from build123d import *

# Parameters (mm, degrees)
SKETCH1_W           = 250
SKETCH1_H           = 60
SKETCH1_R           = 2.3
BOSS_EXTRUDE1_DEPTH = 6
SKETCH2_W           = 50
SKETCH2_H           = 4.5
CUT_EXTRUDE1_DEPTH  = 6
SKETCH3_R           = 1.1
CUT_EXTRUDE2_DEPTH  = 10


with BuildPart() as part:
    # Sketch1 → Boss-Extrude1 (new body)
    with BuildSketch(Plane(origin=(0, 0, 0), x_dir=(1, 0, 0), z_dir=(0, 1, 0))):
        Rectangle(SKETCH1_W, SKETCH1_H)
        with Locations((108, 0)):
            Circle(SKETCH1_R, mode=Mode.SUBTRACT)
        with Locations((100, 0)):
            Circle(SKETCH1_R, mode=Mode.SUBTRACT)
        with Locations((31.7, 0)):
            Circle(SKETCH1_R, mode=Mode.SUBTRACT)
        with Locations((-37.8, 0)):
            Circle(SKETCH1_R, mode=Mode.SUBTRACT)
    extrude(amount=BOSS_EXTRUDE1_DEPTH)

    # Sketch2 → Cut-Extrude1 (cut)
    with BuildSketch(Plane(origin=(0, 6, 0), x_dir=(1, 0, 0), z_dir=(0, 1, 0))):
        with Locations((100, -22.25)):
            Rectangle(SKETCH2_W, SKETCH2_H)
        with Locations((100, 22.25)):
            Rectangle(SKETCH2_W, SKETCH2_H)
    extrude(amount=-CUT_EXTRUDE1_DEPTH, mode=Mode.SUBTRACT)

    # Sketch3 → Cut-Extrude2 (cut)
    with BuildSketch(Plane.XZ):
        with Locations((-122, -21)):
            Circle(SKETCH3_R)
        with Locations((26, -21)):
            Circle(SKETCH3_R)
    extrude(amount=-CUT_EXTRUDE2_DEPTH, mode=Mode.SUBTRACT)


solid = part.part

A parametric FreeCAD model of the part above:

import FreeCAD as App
import Part
import Sketcher

V = App.Vector


def add_polygon(sketch, points):
    """Adds a closed chain of lines whose ends are joined by coincident constraints."""
    first, n = sketch.GeometryCount, len(points)
    for a, b in zip(points, points[1:] + points[:1]):
        sketch.addGeometry(Part.LineSegment(App.Vector(*a, 0), App.Vector(*b, 0)), False)
    for i in range(n):
        sketch.addConstraint(Sketcher.Constraint("Coincident", first + i, 2, first + (i + 1) % n, 1))

doc = App.newDocument("Part")
params = doc.addObject("Spreadsheet::Sheet", "Params")
for row, (alias, value) in enumerate([
    ("sketch1_diameter", "4.6 mm"),
    ("sketch1_width", "250 mm"),
    ("sketch1_height", "60 mm"),
    ("pad1_length", "6 mm"),
    ("sketch2_width", "50 mm"),
    ("sketch2_height", "4.5 mm"),
    ("pocket1_length", "6 mm"),
    ("sketch3_diameter", "2.2 mm"),
    ("pocket2_length", "10 mm"),
], start=1):
    params.set(f"A{row}", alias)
    params.set(f"B{row}", "=" + value)
    params.setAlias(f"B{row}", alias)

body = doc.addObject("PartDesign::Body", "Body")

# Sketch on XZ plane
sketch1 = body.newObject("Sketcher::SketchObject", "Sketch")
sketch1.AttachmentSupport = (doc.getObject("XZ_Plane"), [""])
sketch1.MapMode = "FlatFace"
add_polygon(sketch1, [(-125, -30), (-125, 30), (125, 30), (125, -30)])  # lines 0-3
sketch1.addGeometry(Part.Circle(V(-37.8, 0, 0), V(0, 0, 1), 2.3), False)  # 4
sketch1.addGeometry(Part.Circle(V(31.7, 0, 0), V(0, 0, 1), 2.3), False)  # 5
sketch1.addGeometry(Part.Circle(V(100, 0, 0), V(0, 0, 1), 2.3), False)  # 6
sketch1.addGeometry(Part.Circle(V(108, 0, 0), V(0, 0, 1), 2.3), False)  # 7
sketch1.addConstraint(Sketcher.Constraint("Vertical", 0))
sketch1.addConstraint(Sketcher.Constraint("Horizontal", 1))
sketch1.addConstraint(Sketcher.Constraint("Vertical", 2))
sketch1.addConstraint(Sketcher.Constraint("Horizontal", 3))
sketch1.addConstraint(Sketcher.Constraint("Equal", 4, 5))
sketch1.addConstraint(Sketcher.Constraint("Equal", 5, 6))
sketch1.addConstraint(Sketcher.Constraint("Equal", 6, 7))
sketch1.addConstraint(Sketcher.Constraint("Symmetric", 0, 2, 2, 2, -1, 1))
sketch1.addConstraint(Sketcher.Constraint("PointOnObject", 4, 3, -1))
sketch1.addConstraint(Sketcher.Constraint("PointOnObject", 5, 3, -1))
sketch1.addConstraint(Sketcher.Constraint("PointOnObject", 6, 3, -1))
sketch1.addConstraint(Sketcher.Constraint("PointOnObject", 7, 3, -1))
sketch1.addConstraint(Sketcher.Constraint("Diameter", 4, 4.6))
sketch1.addConstraint(Sketcher.Constraint("DistanceX", 1, 1, 1, 2, 250.0))
sketch1.addConstraint(Sketcher.Constraint("DistanceY", 0, 1, 0, 2, 60.0))
sketch1.addConstraint(Sketcher.Constraint("DistanceX", -1, 1, 6, 3, 100.0))
sketch1.addConstraint(Sketcher.Constraint("DistanceX", -1, 1, 7, 3, 108.0))
sketch1.addConstraint(Sketcher.Constraint("DistanceX", 4, 3, -1, 1, 37.8))
sketch1.addConstraint(Sketcher.Constraint("DistanceX", -1, 1, 5, 3, 31.7))
sketch1.setExpression("Constraints[16]", "Params.sketch1_diameter")
sketch1.setExpression("Constraints[17]", "Params.sketch1_width")
sketch1.setExpression("Constraints[18]", "Params.sketch1_height")
pad1 = body.newObject("PartDesign::Pad", "Pad")
pad1.Profile = sketch1
pad1.setExpression("Length", "Params.pad1_length")
pad1.Reversed = True

# Sketch on XZ plane
sketch2 = body.newObject("Sketcher::SketchObject", "Sketch001")
sketch2.AttachmentSupport = (doc.getObject("XZ_Plane"), [""])
sketch2.MapMode = "FlatFace"
sketch2.AttachmentOffset = App.Placement(V(0, 0, -6), App.Rotation())
add_polygon(sketch2, [(75, 20), (75, 24.5), (125, 24.5), (125, 20)])  # lines 0-3
add_polygon(sketch2, [(75, -24.5), (75, -20), (125, -20), (125, -24.5)])  # lines 4-7
sketch2.addConstraint(Sketcher.Constraint("Vertical", 0))
sketch2.addConstraint(Sketcher.Constraint("Horizontal", 1))
sketch2.addConstraint(Sketcher.Constraint("Vertical", 2))
sketch2.addConstraint(Sketcher.Constraint("Horizontal", 3))
sketch2.addConstraint(Sketcher.Constraint("Vertical", 4))
sketch2.addConstraint(Sketcher.Constraint("Horizontal", 5))
sketch2.addConstraint(Sketcher.Constraint("Vertical", 6))
sketch2.addConstraint(Sketcher.Constraint("Horizontal", 7))
sketch2.addConstraint(Sketcher.Constraint("Symmetric", 3, 2, 4, 2, -1))
sketch2.addConstraint(Sketcher.Constraint("Symmetric", 1, 2, 6, 2, -1))
sketch2.addConstraint(Sketcher.Constraint("DistanceX", 1, 1, 1, 2, 50.0))
sketch2.addConstraint(Sketcher.Constraint("DistanceY", 0, 1, 0, 2, 4.5))
sketch2.addConstraint(Sketcher.Constraint("DistanceX", -1, 1, 0, 2, 75.0))
sketch2.addConstraint(Sketcher.Constraint("DistanceY", -1, 1, 2, 2, 20.0))
sketch2.setExpression("Constraints[18]", "Params.sketch2_width")
sketch2.setExpression("Constraints[19]", "Params.sketch2_height")
pocket1 = body.newObject("PartDesign::Pocket", "Pocket")
pocket1.Profile = sketch2
pocket1.setExpression("Length", "Params.pocket1_length")
pocket1.Reversed = True

# Sketch on XZ plane
sketch3 = body.newObject("Sketcher::SketchObject", "Sketch002")
sketch3.AttachmentSupport = (doc.getObject("XZ_Plane"), [""])
sketch3.MapMode = "FlatFace"
sketch3.addGeometry(Part.Circle(V(-122, -21, 0), V(0, 0, 1), 1.1), False)
sketch3.addGeometry(Part.Circle(V(26, -21, 0), V(0, 0, 1), 1.1), False)
sketch3.addConstraint(Sketcher.Constraint("Equal", 0, 1))
sketch3.addConstraint(Sketcher.Constraint("Horizontal", 0, 3, 1, 3))
sketch3.addConstraint(Sketcher.Constraint("Diameter", 0, 2.2))
sketch3.addConstraint(Sketcher.Constraint("DistanceX", 0, 3, -1, 1, 122.0))
sketch3.addConstraint(Sketcher.Constraint("DistanceY", 0, 3, -1, 1, 21.0))
sketch3.addConstraint(Sketcher.Constraint("DistanceX", -1, 1, 1, 3, 26.0))
sketch3.setExpression("Constraints[2]", "Params.sketch3_diameter")
pocket2 = body.newObject("PartDesign::Pocket", "Pocket001")
pocket2.Profile = sketch3
pocket2.setExpression("Length", "Params.pocket2_length")

doc.recompute()
